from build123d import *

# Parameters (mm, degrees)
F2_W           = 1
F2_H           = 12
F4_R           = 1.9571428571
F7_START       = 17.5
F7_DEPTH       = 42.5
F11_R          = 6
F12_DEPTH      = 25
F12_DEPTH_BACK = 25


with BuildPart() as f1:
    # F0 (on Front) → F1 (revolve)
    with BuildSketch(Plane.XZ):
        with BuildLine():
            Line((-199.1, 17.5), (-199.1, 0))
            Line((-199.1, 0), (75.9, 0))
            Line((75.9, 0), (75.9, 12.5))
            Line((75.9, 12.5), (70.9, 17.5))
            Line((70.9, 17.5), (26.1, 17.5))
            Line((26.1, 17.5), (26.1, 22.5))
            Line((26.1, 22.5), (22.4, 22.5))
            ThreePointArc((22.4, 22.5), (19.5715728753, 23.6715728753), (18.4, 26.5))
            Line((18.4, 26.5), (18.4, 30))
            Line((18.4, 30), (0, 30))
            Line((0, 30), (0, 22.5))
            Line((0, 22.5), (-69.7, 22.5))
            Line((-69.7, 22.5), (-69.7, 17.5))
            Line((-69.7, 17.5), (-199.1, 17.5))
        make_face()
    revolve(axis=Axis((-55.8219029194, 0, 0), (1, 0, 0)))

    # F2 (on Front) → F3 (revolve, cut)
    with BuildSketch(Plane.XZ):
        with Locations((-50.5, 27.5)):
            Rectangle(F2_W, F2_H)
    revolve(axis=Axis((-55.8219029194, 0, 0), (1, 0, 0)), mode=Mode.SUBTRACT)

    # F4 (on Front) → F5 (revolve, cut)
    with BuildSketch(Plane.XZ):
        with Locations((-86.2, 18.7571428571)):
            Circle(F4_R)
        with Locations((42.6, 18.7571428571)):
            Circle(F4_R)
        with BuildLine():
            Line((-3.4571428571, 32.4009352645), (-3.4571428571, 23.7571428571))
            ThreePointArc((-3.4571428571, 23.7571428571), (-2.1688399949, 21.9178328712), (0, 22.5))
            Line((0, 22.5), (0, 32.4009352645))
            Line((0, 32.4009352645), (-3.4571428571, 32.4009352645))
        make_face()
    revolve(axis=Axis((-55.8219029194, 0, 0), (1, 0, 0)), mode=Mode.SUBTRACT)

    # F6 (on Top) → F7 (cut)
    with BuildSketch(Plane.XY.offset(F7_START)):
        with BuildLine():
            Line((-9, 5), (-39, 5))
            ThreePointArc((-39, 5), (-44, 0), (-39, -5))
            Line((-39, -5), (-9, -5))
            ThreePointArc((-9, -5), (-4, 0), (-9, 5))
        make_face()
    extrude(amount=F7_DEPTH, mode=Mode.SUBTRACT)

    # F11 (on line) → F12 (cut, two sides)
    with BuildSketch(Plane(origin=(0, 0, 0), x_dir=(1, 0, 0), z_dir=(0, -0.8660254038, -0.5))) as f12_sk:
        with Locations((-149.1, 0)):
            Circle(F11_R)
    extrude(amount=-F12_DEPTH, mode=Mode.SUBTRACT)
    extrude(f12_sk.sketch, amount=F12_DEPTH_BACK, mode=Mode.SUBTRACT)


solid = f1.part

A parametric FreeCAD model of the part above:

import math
import FreeCAD as App
import Part
import Sketcher
from FreeCAD import Vector
Q = App.Units.Quantity

doc = App.newDocument("Part")
body = doc.addObject("PartDesign::Body", "Body")

# Sketch on XZ plane
sketch1 = doc.addObject("Sketcher::SketchObject", "Sketch")
body.addObject(sketch1)
sketch1.AttachmentSupport = (doc.XZ_Plane, [""])
sketch1.MapMode = "FlatFace"
sketch1.addGeometry([
    Part.LineSegment(Vector(-199.1, 17.5, 0), Vector(-199.1, 0, 0)),  # 0
    Part.LineSegment(Vector(-199.1, 0, 0), Vector(75.9, 0, 0)),  # 1
    Part.LineSegment(Vector(75.9, 0, 0), Vector(75.9, 12.5, 0)),  # 2
    Part.LineSegment(Vector(75.9, 12.5, 0), Vector(70.9, 17.5, 0)),  # 3
    Part.LineSegment(Vector(70.9, 17.5, 0), Vector(26.1, 17.5, 0)),  # 4
    Part.LineSegment(Vector(26.1, 17.5, 0), Vector(26.1, 22.5, 0)),  # 5
    Part.LineSegment(Vector(26.1, 22.5, 0), Vector(22.4, 22.5, 0)),  # 6
    Part.ArcOfCircle(Part.Circle(Vector(22.4, 26.5, 0), Vector(0, 0, 1), 4), math.radians(180), math.radians(270)),  # 7
    Part.LineSegment(Vector(18.4, 26.5, 0), Vector(18.4, 30, 0)),  # 8
    Part.LineSegment(Vector(18.4, 30, 0), Vector(0, 30, 0)),  # 9
    Part.LineSegment(Vector(0, 30, 0), Vector(0, 22.5, 0)),  # 10
    Part.LineSegment(Vector(0, 22.5, 0), Vector(-69.7, 22.5, 0)),  # 11
    Part.LineSegment(Vector(-69.7, 22.5, 0), Vector(-69.7, 17.5, 0)),  # 12
    Part.LineSegment(Vector(-69.7, 17.5, 0), Vector(-199.1, 17.5, 0)),  # 13
], False)
sketch1.addConstraint([
    Sketcher.Constraint("Coincident", 0, 2, 1, 1),
    Sketcher.Constraint("Coincident", 1, 2, 2, 1),
    Sketcher.Constraint("Coincident", 2, 2, 3, 1),
    Sketcher.Constraint("Coincident", 3, 2, 4, 1),
    Sketcher.Constraint("Coincident", 4, 2, 5, 1),
    Sketcher.Constraint("Coincident", 5, 2, 6, 1),
    Sketcher.Constraint("Tangent", 6, 2, 7, 2),
    Sketcher.Constraint("Tangent", 7, 1, 8, 1),
    Sketcher.Constraint("Coincident", 8, 2, 9, 1),
    Sketcher.Constraint("Coincident", 9, 2, 10, 1),
    Sketcher.Constraint("Coincident", 10, 2, 11, 1),
    Sketcher.Constraint("Coincident", 11, 2, 12, 1),
    Sketcher.Constraint("Coincident", 12, 2, 13, 1),
    Sketcher.Constraint("Coincident", 13, 2, 0, 1),
    Sketcher.Constraint("Vertical", 0),
    Sketcher.Constraint("Horizontal", 1),
    Sketcher.Constraint("Vertical", 2),
    Sketcher.Constraint("Horizontal", 4),
    Sketcher.Constraint("Vertical", 5),
    Sketcher.Constraint("Horizontal", 6),
    Sketcher.Constraint("Vertical", 8),
    Sketcher.Constraint("Horizontal", 9),
    Sketcher.Constraint("Vertical", 10),
    Sketcher.Constraint("Horizontal", 11),
    Sketcher.Constraint("Vertical", 12),
    Sketcher.Constraint("Horizontal", 13),
    Sketcher.Constraint("PointOnObject", 0, 2, -1),
    Sketcher.Constraint("PointOnObject", 9, 2, -2),
    Sketcher.Constraint("Horizontal", 6, 2, 10, 2),
    Sketcher.Constraint("Horizontal", 4, 2, 12, 2),
    Sketcher.Constraint("Radius", 7, 4.0),
    Sketcher.Constraint("DistanceX", 1, 1, 1, 2, 275.0),
    Sketcher.Constraint("DistanceY", 5, 1, 5, 2, 5.0),
    Sketcher.Constraint("Angle", 3, Q("135 deg")),
    Sketcher.Constraint("DistanceX", 4, 2, 4, 1, 44.8),
    Sketcher.Constraint("DistanceX", 6, 2, 6, 1, 3.7),
    Sketcher.Constraint("DistanceX", 9, 2, 9, 1, 18.4),
    Sketcher.Constraint("DistanceX", 11, 2, 11, 1, 69.7),
    Sketcher.Constraint("DistanceX", 13, 2, 13, 1, 129.4),
    Sketcher.Constraint("DistanceY", 0, 2, 0, 1, 17.5),
    Sketcher.Constraint("DistanceY", 8, 1, 8, 2, 3.5),
])
revolution = doc.addObject("PartDesign::Revolution", "Revolution")
body.addObject(revolution)
revolution.Profile = sketch1
revolution.ReferenceAxis = (sketch1, ["H_Axis"])
revolution.Angle = 360

# Sketch on XZ plane
sketch2 = doc.addObject("Sketcher::SketchObject", "Sketch001")
body.addObject(sketch2)
sketch2.AttachmentSupport = (doc.XZ_Plane, [""])
sketch2.MapMode = "FlatFace"
sketch2.addGeometry([
    Part.LineSegment(Vector(-51, 33.5, 0), Vector(-51, 21.5, 0)),
    Part.LineSegment(Vector(-51, 21.5, 0), Vector(-50, 21.5, 0)),
    Part.LineSegment(Vector(-50, 21.5, 0), Vector(-50, 33.5, 0)),
    Part.LineSegment(Vector(-50, 33.5, 0), Vector(-51, 33.5, 0)),
], False)
sketch2.addConstraint([
    Sketcher.Constraint("Coincident", 0, 2, 1, 1),
    Sketcher.Constraint("Coincident", 1, 2, 2, 1),
    Sketcher.Constraint("Coincident", 2, 2, 3, 1),
    Sketcher.Constraint("Coincident", 3, 2, 0, 1),
    Sketcher.Constraint("Vertical", 0),
    Sketcher.Constraint("Horizontal", 1),
    Sketcher.Constraint("Vertical", 2),
    Sketcher.Constraint("Horizontal", 3),
    Sketcher.Constraint("DistanceX", 1, 1, 1, 2, 1.0),
    Sketcher.Constraint("DistanceY", 0, 2, 0, 1, 12.0),
    Sketcher.Constraint("DistanceX", 0, 2, -1, 1, 51.0),
    Sketcher.Constraint("DistanceY", -1, 1, 0, 2, 21.5),
])
groove = doc.addObject("PartDesign::Groove", "Groove")
body.addObject(groove)
groove.Profile = sketch2
groove.ReferenceAxis = (sketch2, ["H_Axis"])
groove.Angle = 360

# Sketch on XZ plane
sketch3 = doc.addObject("Sketcher::SketchObject", "Sketch002")
body.addObject(sketch3)
sketch3.AttachmentSupport = (doc.XZ_Plane, [""])
sketch3.MapMode = "FlatFace"
sketch3.addGeometry([
    Part.Circle(Vector(-86.2, 18.757143, 0), Vector(0, 0, 1), 1.957143),  # 0
    Part.Circle(Vector(42.6, 18.757143, 0), Vector(0, 0, 1), 1.957143),  # 1
    Part.LineSegment(Vector(-3.457143, 32.400935, 0), Vector(-3.457143, 23.757143, 0)),  # 2
    Part.ArcOfCircle(Part.Circle(Vector(-1.5, 23.757143, 0), Vector(0, 0, 1), 1.957143), math.radians(180), math.radians(320.033787)),  # 3
    Part.LineSegment(Vector(0, 22.5, 0), Vector(0, 32.400935, 0)),  # 4
    Part.LineSegment(Vector(0, 32.400935, 0), Vector(-3.457143, 32.400935, 0)),  # 5
], False)
sketch3.addConstraint([
    Sketcher.Constraint("Tangent", 2, 2, 3, 1),
    Sketcher.Constraint("Coincident", 3, 2, 4, 1),
    Sketcher.Constraint("Coincident", 4, 2, 5, 1),
    Sketcher.Constraint("Coincident", 5, 2, 2, 1),
    Sketcher.Constraint("Vertical", 2),
    Sketcher.Constraint("Vertical", 4),
    Sketcher.Constraint("Horizontal", 5),
    Sketcher.Constraint("Equal", 0, 1),
    Sketcher.Constraint("Equal", 1, 3),
    Sketcher.Constraint("PointOnObject", 3, 2, -2),
    Sketcher.Constraint("Horizontal", 0, 3, 1, 3),
    Sketcher.Constraint("DistanceY", 1, 3, 3, 3, 5.0),
    Sketcher.Constraint("DistanceX", 0, 3, -1, 1, 86.2),
    Sketcher.Constraint("DistanceX", -1, 1, 1, 3, 42.6),
    Sketcher.Constraint("DistanceX", 3, 3, -1, 1, 1.5),
    Sketcher.Constraint("DistanceY", -1, 1, 3, 2, 22.5),
    Sketcher.Constraint("Diameter", 0, 3.914286),
    Sketcher.Constraint("DistanceY", 2, 2, 2, 1, 8.643792),
])
groove2 = doc.addObject("PartDesign::Groove", "Groove001")
body.addObject(groove2)
groove2.Profile = sketch3
groove2.ReferenceAxis = (sketch3, ["H_Axis"])
groove2.Angle = 360

# Sketch on XY plane
sketch4 = doc.addObject("Sketcher::SketchObject", "Sketch003")
body.addObject(sketch4)
sketch4.AttachmentSupport = (doc.XY_Plane, [""])
sketch4.MapMode = "FlatFace"
sketch4.AttachmentOffset = App.Placement(Vector(0, 0, 17.5), App.Rotation())
sketch4.addGeometry([
    Part.LineSegment(Vector(-9, 5, 0), Vector(-39, 5, 0)),
    Part.ArcOfCircle(Part.Circle(Vector(-39, 0, 0), Vector(0, 0, 1), 5), math.radians(90), math.radians(270)),
    Part.LineSegment(Vector(-39, -5, 0), Vector(-9, -5, 0)),
    Part.ArcOfCircle(Part.Circle(Vector(-9, 0, 0), Vector(0, 0, 1), 5), math.radians(-90), math.radians(90)),
], False)
sketch4.addConstraint([
    Sketcher.Constraint("Tangent", 0, 2, 1, 1),
    Sketcher.Constraint("Tangent", 1, 2, 2, 1),
    Sketcher.Constraint("Tangent", 2, 2, 3, 1),
    Sketcher.Constraint("Tangent", 3, 2, 0, 1),
    Sketcher.Constraint("Horizontal", 0),
    Sketcher.Constraint("Horizontal", 2),
    Sketcher.Constraint("PointOnObject", 1, 3, -1),
    Sketcher.Constraint("Radius", 1, 5.0),
    Sketcher.Constraint("DistanceX", 0, 2, 0, 1, 30.0),
    Sketcher.Constraint("DistanceX", 1, 3, -1, 1, 39.0),
])
pocket1 = doc.addObject("PartDesign::Pocket", "Pocket")
body.addObject(pocket1)
pocket1.Profile = sketch4
pocket1.Length = 42.5
pocket1.Reversed = True

# Sketch on an angled plane
sketch5 = doc.addObject("Sketcher::SketchObject", "Sketch004")
body.addObject(sketch5)
sketch5.Placement = App.Placement(Vector(0, 0, 0), App.Rotation(Vector(1, 0, 0), Vector(0, -0.5, 0.866025404), Vector(0, -0.866025404, -0.5), "ZXY"))
sketch5.addGeometry(Part.Circle(Vector(-149.1, 0, 0), Vector(0, 0, 1), 6), False)
sketch5.addConstraint([
    Sketcher.Constraint("PointOnObject", 0, 3, -1),
    Sketcher.Constraint("Diameter", 0, 12.0),
    Sketcher.Constraint("DistanceX", 0, 3, -1, 1, 149.1),
])
pocket2 = doc.addObject("PartDesign::Pocket", "Pocket001")
body.addObject(pocket2)
pocket2.Profile = sketch5
pocket2.Type = "ThroughAll"
pocket2.Midplane = True

doc.recompute()
